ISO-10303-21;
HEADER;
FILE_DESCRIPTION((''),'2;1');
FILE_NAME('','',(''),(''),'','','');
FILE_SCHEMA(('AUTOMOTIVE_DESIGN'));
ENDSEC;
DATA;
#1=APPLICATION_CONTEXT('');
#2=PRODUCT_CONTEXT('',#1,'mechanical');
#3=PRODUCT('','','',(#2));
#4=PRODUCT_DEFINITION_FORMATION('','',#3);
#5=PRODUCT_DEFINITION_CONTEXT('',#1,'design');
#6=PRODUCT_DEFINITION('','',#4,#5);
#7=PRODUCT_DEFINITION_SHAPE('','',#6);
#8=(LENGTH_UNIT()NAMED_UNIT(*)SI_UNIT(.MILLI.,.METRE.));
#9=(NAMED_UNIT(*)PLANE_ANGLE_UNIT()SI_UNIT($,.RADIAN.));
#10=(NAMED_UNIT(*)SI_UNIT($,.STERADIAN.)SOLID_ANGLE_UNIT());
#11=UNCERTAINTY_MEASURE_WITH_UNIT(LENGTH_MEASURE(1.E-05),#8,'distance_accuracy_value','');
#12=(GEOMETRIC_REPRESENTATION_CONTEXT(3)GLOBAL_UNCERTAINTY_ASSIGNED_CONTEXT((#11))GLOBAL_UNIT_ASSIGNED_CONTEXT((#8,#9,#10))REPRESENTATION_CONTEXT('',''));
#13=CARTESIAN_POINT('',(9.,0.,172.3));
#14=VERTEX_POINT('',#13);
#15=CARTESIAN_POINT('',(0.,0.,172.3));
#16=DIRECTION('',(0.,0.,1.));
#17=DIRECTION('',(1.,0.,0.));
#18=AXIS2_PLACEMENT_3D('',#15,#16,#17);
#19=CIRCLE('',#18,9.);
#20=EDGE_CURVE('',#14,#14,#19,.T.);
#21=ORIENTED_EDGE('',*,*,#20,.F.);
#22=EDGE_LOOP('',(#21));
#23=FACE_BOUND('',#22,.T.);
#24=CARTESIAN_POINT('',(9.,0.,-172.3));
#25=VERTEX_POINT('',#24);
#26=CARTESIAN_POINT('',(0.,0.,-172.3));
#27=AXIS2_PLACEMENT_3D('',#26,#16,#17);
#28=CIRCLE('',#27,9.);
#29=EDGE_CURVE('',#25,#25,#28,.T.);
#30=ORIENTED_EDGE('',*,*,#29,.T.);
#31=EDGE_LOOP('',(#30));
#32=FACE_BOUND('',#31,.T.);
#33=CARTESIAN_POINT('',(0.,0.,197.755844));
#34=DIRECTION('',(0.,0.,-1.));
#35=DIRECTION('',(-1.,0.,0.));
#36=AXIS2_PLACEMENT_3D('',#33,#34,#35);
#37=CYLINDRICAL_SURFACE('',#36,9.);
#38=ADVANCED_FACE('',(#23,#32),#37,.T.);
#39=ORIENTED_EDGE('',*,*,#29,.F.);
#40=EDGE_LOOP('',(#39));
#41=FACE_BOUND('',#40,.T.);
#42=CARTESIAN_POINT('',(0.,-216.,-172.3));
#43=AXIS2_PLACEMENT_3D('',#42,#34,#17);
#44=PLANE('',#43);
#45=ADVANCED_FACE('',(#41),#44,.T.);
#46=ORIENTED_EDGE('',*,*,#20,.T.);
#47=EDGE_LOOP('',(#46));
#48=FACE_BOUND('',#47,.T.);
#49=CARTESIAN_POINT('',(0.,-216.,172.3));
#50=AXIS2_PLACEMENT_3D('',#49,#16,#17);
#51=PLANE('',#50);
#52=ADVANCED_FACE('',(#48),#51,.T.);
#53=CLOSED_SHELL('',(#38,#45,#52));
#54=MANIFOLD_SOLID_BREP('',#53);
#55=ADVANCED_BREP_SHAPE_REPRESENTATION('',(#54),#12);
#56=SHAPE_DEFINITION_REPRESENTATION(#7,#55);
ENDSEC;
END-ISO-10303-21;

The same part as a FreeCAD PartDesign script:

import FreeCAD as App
import Part
import Sketcher
Q = App.Units.Quantity

doc = App.newDocument("Part")
body = doc.addObject("PartDesign::Body", "Body")

# Sketch on XY plane
sketch1 = body.newObject("Sketcher::SketchObject", "Sketch")
sketch1.AttachmentSupport = (doc.getObject("XY_Plane"), [""])
sketch1.MapMode = "FlatFace"
sketch1.addGeometry(Part.Circle(App.Vector(0, 0, 0), App.Vector(0, 0, 1), 9), False)
sketch1.addConstraint([
    Sketcher.Constraint("Coincident", 0, 3, -1, 1),
    Sketcher.Constraint("Diameter", 0, Q("18 mm")),
])
pad1 = body.newObject("PartDesign::Pad", "Pad")
pad1.Profile = sketch1
pad1.Length = 172.3
body2 = doc.addObject("PartDesign::Body", "Body001")
doc.recompute()

body2.BaseFeature = body
doc.recompute()

mirroring = doc.addObject("Part::Mirroring", "Mirroring")
mirroring.Source = body
mirroring.Base = App.Vector(0, 0, 0)
mirroring.Normal = App.Vector(0, 0, 1)
body3 = doc.addObject("PartDesign::Body", "Body002")
body3.BaseFeature = mirroring
boolean = body2.newObject("PartDesign::Boolean", "Boolean")
boolean.Type = "Fuse"
boolean.addObjects([body3])
doc.recompute()
mirroring.Visibility = False

doc.recompute()
